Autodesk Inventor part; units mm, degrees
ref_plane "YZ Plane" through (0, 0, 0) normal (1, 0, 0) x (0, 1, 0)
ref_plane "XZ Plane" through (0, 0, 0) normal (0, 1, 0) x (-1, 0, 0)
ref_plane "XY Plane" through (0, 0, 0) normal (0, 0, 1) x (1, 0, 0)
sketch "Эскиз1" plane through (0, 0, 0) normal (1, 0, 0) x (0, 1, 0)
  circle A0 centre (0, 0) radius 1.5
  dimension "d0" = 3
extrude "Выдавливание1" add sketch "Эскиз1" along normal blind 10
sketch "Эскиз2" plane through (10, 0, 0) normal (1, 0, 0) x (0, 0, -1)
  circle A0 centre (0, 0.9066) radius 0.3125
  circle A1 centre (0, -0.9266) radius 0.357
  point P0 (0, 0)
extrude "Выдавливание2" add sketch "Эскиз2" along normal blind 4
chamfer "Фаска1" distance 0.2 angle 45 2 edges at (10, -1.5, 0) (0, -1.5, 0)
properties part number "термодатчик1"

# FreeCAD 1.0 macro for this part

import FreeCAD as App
import Part
import Sketcher
from FreeCAD import Vector
Q = App.Units.Quantity


def edges_at(feature, points):
    """Names of the edges that pass closest to the given points."""
    edges = feature.Shape.Edges
    near = lambda p: min(range(len(edges)), key=lambda i: edges[i].distToShape(Part.Vertex(*p))[0])
    return sorted({f"Edge{near(p) + 1}" for p in points})

doc = App.newDocument("Part")
body = doc.addObject("PartDesign::Body", "Body")

# Sketch on YZ plane
sketch1 = body.newObject("Sketcher::SketchObject", "Sketch")
sketch1.AttachmentSupport = (doc.getObject("YZ_Plane"), [""])
sketch1.MapMode = "FlatFace"
sketch1.addGeometry(Part.Circle(Vector(0, 0, 0), Vector(0, 0, 1), 1.5), False)
sketch1.addConstraint(Sketcher.Constraint("Coincident", 0, 3, -1, 1))
sketch1.addConstraint(Sketcher.Constraint("Diameter", 0, Q("3 mm")))
pad1 = body.newObject("PartDesign::Pad", "Pad")
pad1.Profile = sketch1
pad1.Length = 10

# Sketch on YZ plane
sketch2 = body.newObject("Sketcher::SketchObject", "Sketch001")
sketch2.AttachmentSupport = (doc.getObject("YZ_Plane"), [""])
sketch2.MapMode = "FlatFace"
sketch2.AttachmentOffset = App.Placement(Vector(0, 0, 10), App.Rotation())
sketch2.addGeometry(Part.Circle(Vector(0.9066, 0, 0), Vector(0, 0, 1), 0.3125), False)
sketch2.addGeometry(Part.Circle(Vector(-0.9266, 0, 0), Vector(0, 0, 1), 0.357), False)
sketch2.addConstraint(Sketcher.Constraint("PointOnObject", 0, 3, -1))
sketch2.addConstraint(Sketcher.Constraint("PointOnObject", 1, 3, -1))
sketch2.addConstraint(Sketcher.Constraint("Diameter", 0, Q("0.625 mm")))
sketch2.addConstraint(Sketcher.Constraint("Diameter", 1, Q("0.714 mm")))
sketch2.addConstraint(Sketcher.Constraint("DistanceX", -1, 1, 0, 3, Q("0.9066 mm")))
sketch2.addConstraint(Sketcher.Constraint("DistanceX", 1, 3, -1, 1, Q("0.9266 mm")))
pad2 = body.newObject("PartDesign::Pad", "Pad001")
pad2.Profile = sketch2
pad2.Length = 4
doc.recompute()

chamfer = body.newObject("PartDesign::Chamfer", "Chamfer")
chamfer.Base = (pad2, edges_at(pad2, [(10, -1.5, 0), (0, -1.5, 0)]))
chamfer.Size = 0.2

doc.recompute()
